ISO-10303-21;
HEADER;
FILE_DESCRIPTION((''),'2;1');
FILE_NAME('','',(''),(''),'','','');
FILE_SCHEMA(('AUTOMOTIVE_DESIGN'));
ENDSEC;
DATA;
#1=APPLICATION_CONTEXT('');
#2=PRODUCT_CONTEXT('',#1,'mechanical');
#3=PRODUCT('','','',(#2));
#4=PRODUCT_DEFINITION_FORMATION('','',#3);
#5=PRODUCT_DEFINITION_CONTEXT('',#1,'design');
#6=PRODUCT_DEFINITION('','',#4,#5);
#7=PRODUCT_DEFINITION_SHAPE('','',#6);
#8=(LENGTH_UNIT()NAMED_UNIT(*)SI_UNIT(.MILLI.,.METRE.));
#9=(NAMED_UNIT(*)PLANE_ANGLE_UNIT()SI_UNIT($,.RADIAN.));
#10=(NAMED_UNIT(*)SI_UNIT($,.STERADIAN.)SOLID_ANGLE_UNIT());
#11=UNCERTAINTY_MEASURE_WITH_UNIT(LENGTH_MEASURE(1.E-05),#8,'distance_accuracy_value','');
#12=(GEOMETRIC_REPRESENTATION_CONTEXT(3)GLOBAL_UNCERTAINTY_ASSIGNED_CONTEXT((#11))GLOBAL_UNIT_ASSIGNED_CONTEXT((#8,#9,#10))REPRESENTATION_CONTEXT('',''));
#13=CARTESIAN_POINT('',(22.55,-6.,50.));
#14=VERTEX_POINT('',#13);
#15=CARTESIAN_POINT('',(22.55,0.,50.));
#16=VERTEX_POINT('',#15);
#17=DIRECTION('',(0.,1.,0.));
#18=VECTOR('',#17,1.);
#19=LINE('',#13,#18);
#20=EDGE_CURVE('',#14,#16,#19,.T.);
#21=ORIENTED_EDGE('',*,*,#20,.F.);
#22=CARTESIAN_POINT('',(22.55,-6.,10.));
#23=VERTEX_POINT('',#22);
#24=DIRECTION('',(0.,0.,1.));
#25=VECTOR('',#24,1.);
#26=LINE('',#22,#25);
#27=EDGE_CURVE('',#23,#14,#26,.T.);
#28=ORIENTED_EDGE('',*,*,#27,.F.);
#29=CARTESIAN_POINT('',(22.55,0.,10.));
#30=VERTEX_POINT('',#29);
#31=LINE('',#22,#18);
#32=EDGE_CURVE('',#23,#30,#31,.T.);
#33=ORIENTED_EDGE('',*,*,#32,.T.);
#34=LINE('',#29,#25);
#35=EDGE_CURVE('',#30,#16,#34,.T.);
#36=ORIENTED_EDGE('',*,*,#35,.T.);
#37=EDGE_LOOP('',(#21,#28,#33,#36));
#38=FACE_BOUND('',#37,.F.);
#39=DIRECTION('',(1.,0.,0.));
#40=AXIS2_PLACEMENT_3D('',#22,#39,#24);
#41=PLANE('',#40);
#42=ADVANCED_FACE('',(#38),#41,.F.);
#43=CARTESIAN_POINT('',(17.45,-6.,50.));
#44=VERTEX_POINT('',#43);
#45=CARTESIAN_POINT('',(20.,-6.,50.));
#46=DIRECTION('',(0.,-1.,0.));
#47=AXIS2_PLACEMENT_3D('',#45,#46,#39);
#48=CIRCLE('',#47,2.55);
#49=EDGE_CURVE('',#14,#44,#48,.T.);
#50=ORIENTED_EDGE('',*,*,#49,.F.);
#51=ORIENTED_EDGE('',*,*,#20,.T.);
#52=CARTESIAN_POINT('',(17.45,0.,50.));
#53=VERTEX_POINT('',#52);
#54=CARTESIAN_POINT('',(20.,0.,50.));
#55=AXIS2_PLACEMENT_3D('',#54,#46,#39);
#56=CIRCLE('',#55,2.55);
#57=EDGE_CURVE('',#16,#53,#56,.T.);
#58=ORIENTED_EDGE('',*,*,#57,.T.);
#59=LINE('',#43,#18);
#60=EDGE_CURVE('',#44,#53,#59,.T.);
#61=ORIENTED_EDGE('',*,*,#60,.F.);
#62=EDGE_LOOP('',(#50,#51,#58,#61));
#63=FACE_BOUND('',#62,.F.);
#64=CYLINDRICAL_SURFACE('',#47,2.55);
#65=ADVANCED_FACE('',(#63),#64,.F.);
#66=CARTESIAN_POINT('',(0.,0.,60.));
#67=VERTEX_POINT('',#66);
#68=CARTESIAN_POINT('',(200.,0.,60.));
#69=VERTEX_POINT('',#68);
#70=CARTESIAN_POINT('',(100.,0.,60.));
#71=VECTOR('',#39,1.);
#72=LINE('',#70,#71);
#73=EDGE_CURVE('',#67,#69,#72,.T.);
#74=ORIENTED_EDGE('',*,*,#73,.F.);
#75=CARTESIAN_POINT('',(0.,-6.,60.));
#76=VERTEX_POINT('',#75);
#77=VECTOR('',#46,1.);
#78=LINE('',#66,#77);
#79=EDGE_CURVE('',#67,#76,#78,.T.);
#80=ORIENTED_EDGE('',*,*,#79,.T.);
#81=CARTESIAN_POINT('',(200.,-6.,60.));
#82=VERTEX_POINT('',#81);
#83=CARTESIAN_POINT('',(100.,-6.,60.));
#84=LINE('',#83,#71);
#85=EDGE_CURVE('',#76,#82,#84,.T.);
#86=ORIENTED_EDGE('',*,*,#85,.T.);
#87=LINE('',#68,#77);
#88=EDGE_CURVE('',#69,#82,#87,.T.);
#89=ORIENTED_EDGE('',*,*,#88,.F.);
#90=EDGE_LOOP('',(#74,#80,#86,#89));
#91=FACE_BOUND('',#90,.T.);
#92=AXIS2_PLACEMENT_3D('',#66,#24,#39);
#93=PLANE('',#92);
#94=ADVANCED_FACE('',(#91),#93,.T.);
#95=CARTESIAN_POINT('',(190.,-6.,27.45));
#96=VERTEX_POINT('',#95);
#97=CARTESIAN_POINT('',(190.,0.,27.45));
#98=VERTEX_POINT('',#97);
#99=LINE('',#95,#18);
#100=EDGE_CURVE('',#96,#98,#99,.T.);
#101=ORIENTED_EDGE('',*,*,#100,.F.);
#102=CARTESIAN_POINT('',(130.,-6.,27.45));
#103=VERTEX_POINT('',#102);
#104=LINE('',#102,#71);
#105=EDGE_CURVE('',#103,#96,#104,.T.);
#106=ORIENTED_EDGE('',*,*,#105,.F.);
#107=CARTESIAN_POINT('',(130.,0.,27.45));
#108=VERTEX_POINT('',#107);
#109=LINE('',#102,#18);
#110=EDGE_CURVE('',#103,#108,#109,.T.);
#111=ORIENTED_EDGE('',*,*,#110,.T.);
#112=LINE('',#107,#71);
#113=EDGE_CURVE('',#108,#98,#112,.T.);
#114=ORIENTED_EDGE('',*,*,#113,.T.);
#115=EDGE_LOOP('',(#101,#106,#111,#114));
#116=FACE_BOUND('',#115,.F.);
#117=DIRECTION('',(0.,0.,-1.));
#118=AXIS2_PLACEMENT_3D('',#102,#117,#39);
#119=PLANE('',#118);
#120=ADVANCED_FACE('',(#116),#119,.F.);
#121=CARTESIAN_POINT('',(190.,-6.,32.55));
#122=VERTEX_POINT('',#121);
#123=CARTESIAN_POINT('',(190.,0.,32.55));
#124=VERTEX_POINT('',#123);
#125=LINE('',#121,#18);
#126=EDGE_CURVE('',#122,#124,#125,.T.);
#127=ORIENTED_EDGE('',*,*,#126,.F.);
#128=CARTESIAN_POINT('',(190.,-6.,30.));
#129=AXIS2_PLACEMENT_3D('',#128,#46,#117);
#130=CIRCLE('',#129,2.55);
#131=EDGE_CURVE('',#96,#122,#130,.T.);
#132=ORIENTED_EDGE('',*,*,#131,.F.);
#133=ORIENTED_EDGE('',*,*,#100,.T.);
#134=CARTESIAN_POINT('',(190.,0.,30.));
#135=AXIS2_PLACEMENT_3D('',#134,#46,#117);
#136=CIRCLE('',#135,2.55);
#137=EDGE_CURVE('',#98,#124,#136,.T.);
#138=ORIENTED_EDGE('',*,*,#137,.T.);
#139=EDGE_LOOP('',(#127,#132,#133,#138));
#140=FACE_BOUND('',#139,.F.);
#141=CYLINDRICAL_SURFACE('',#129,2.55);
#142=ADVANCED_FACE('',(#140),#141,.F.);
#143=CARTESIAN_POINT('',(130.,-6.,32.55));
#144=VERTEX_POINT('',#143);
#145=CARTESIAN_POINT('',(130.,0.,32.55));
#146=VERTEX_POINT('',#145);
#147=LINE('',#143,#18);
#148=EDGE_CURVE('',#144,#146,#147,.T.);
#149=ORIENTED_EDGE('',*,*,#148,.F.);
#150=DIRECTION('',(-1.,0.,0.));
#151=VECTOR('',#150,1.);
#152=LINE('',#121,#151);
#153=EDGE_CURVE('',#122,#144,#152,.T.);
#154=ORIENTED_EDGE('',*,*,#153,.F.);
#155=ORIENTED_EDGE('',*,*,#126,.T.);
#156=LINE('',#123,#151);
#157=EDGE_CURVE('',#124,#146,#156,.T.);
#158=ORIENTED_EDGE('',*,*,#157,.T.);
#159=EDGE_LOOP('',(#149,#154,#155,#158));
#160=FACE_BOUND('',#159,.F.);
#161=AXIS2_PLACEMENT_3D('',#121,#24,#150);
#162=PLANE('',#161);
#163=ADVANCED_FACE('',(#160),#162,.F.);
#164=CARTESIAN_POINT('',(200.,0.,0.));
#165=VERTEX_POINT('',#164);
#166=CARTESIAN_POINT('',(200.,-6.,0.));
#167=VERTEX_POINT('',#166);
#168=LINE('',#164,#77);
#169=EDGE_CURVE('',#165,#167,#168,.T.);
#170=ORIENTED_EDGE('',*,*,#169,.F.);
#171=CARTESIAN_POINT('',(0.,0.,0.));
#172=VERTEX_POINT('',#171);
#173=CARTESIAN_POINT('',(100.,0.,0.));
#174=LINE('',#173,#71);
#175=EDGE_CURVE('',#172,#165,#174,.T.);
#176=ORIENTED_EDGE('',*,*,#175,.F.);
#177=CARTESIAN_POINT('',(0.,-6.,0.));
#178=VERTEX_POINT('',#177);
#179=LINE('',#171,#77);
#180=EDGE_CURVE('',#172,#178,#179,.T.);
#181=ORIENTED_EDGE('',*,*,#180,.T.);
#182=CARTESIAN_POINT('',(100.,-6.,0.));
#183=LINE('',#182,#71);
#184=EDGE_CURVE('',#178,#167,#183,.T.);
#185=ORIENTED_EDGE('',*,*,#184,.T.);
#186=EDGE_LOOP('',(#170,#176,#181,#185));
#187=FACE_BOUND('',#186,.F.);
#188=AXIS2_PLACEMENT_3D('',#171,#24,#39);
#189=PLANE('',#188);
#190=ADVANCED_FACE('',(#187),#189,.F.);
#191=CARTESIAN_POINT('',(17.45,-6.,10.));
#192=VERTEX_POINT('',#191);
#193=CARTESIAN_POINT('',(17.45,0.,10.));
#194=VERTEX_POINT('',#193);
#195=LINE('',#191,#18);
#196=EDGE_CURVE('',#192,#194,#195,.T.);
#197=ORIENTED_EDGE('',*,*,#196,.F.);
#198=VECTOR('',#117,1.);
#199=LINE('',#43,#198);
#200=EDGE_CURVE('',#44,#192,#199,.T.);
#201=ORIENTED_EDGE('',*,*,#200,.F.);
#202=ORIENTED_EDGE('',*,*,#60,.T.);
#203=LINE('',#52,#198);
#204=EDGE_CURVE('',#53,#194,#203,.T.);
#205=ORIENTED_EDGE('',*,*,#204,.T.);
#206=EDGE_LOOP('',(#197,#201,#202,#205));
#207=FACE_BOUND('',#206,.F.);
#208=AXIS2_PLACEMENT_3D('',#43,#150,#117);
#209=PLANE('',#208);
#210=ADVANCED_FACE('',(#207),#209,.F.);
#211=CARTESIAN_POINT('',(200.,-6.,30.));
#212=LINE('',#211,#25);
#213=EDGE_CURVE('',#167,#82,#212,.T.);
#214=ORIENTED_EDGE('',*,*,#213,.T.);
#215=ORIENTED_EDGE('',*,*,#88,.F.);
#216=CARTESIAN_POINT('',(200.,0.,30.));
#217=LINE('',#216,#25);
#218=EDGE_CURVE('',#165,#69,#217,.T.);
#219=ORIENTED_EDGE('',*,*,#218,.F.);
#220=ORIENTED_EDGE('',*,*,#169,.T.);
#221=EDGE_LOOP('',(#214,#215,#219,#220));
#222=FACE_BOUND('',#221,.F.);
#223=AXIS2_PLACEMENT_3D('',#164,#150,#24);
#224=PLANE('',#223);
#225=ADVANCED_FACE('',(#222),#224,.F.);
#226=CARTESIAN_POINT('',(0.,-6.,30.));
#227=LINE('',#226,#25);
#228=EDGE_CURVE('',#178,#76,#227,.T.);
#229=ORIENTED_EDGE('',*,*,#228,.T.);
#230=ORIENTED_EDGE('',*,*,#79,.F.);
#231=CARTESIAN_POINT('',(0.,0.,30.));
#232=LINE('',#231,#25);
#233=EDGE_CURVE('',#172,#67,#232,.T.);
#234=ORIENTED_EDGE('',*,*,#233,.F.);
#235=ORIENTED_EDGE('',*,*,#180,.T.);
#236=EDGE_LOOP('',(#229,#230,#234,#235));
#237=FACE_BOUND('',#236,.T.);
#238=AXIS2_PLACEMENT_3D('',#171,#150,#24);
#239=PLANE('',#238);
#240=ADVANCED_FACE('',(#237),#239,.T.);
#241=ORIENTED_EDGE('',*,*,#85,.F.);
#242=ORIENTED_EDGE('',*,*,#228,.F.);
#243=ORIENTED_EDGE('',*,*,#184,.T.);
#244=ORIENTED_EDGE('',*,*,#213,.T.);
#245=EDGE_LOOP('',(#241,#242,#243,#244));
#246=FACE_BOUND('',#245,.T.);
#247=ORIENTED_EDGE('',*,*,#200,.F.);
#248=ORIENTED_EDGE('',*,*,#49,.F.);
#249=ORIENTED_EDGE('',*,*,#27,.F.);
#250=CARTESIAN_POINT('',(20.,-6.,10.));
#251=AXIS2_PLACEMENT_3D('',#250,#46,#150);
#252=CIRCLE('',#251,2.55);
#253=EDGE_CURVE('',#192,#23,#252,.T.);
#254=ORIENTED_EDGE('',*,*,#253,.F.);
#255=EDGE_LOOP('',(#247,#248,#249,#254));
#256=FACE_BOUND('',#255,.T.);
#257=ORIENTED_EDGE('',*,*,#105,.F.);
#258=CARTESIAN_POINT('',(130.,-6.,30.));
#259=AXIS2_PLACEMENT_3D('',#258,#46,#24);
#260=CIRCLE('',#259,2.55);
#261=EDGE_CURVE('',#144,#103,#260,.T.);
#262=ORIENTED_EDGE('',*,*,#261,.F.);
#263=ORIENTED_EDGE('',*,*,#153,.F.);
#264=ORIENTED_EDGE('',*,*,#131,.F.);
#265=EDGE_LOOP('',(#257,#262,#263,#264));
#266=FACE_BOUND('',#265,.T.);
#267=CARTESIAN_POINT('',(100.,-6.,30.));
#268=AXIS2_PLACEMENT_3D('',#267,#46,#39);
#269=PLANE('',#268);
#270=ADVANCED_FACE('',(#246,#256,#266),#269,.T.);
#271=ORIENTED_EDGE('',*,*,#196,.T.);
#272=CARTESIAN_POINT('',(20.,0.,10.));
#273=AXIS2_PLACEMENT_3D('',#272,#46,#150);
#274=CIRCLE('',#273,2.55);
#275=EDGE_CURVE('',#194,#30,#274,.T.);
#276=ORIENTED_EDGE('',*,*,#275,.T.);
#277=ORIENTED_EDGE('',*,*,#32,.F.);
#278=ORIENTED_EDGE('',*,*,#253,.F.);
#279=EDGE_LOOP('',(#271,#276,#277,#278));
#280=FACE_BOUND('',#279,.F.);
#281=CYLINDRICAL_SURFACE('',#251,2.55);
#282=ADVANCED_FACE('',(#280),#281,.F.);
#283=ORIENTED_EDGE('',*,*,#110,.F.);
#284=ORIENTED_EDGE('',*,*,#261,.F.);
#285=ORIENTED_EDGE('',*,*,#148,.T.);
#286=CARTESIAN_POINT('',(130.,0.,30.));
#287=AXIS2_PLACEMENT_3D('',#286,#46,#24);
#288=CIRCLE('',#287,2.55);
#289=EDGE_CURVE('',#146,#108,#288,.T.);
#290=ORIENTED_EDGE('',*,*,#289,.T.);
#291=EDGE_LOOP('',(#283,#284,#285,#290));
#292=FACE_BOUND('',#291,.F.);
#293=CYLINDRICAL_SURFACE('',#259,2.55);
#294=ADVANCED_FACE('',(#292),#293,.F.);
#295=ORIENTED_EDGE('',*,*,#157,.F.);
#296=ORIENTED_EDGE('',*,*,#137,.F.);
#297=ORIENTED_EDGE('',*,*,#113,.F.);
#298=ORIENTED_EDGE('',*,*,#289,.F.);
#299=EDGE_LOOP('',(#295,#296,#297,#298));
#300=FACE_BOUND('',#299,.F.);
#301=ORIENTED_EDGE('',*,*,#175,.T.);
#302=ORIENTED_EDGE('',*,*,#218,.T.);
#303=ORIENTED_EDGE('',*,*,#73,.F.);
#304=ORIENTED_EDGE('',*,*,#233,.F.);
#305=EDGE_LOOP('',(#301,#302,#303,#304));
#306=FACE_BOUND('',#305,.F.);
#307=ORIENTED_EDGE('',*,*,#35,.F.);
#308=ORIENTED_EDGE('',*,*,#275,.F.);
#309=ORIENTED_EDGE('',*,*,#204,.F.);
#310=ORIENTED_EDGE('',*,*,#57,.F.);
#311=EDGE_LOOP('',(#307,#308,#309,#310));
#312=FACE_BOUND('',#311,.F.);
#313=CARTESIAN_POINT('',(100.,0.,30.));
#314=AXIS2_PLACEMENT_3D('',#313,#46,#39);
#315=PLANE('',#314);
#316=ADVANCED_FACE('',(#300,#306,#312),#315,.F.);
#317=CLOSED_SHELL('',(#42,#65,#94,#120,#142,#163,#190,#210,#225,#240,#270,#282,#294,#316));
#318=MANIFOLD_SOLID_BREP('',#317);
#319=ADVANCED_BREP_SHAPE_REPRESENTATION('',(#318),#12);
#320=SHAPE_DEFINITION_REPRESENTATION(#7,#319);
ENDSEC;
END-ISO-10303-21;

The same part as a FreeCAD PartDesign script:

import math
import FreeCAD as App
import Part
import Sketcher
from FreeCAD import Vector
Q = App.Units.Quantity


def add_polygon(sketch, points):
    """Adds a closed chain of lines whose ends are joined by coincident constraints."""
    first, n = sketch.GeometryCount, len(points)
    for a, b in zip(points, points[1:] + points[:1]):
        sketch.addGeometry(Part.LineSegment(App.Vector(*a, 0), App.Vector(*b, 0)), False)
    for i in range(n):
        sketch.addConstraint(Sketcher.Constraint("Coincident", first + i, 2, first + (i + 1) % n, 1))

doc = App.newDocument("Part")
body = doc.addObject("PartDesign::Body", "Body")

# Sketch on XZ plane
sketch1 = body.newObject("Sketcher::SketchObject", "Sketch")
sketch1.AttachmentSupport = (doc.getObject("XZ_Plane"), [""])
sketch1.MapMode = "FlatFace"
add_polygon(sketch1, [(0, 60), (0, 0), (200, 0), (200, 60)])  # lines 0-3
sketch1.addConstraint(Sketcher.Constraint("Vertical", 0))
sketch1.addConstraint(Sketcher.Constraint("Horizontal", 1))
sketch1.addConstraint(Sketcher.Constraint("Vertical", 2))
sketch1.addConstraint(Sketcher.Constraint("Horizontal", 3))
sketch1.addConstraint(Sketcher.Constraint("Coincident", 0, 2, -1, 1))
sketch1.addConstraint(Sketcher.Constraint("DistanceX", 1, 1, 1, 2, Q("200 mm")))
sketch1.addConstraint(Sketcher.Constraint("DistanceY", 0, 2, 0, 1, Q("60 mm")))
pad1 = body.newObject("PartDesign::Pad", "Pad")
pad1.Profile = sketch1
pad1.Length = 6

# Sketch on XZ plane
sketch2 = body.newObject("Sketcher::SketchObject", "Sketch001")
sketch2.AttachmentSupport = (doc.getObject("XZ_Plane"), [""])
sketch2.MapMode = "FlatFace"
sketch2.AttachmentOffset = App.Placement(Vector(0, 0, 6), App.Rotation())
sketch2.addGeometry(Part.ArcOfCircle(Part.Circle(Vector(20, 50, 0), Vector(0, 0, 1), 2.5), math.radians(0), math.radians(180)), False)
sketch2.addGeometry(Part.LineSegment(Vector(17.4, 50, 0), Vector(17.4, 10, 0)), False)
sketch2.addGeometry(Part.ArcOfCircle(Part.Circle(Vector(20, 10, 0), Vector(0, 0, 1), 2.5), math.radians(180), math.radians(360)), False)
sketch2.addGeometry(Part.LineSegment(Vector(22.6, 10, 0), Vector(22.6, 50, 0)), False)
sketch2.addGeometry(Part.ArcOfCircle(Part.Circle(Vector(190, 30, 0), Vector(0, 0, 1), 2.5), math.radians(-90), math.radians(90)), False)
sketch2.addGeometry(Part.LineSegment(Vector(190, 32.5, 0), Vector(130, 32.5, 0)), False)
sketch2.addGeometry(Part.ArcOfCircle(Part.Circle(Vector(130, 30, 0), Vector(0, 0, 1), 2.5), math.radians(90), math.radians(270)), False)
sketch2.addGeometry(Part.LineSegment(Vector(130, 27.4, 0), Vector(190, 27.4, 0)), False)
sketch2.addConstraint(Sketcher.Constraint("Tangent", 0, 2, 1, 1))
sketch2.addConstraint(Sketcher.Constraint("Tangent", 1, 2, 2, 1))
sketch2.addConstraint(Sketcher.Constraint("Tangent", 2, 2, 3, 1))
sketch2.addConstraint(Sketcher.Constraint("Tangent", 3, 2, 0, 1))
sketch2.addConstraint(Sketcher.Constraint("Tangent", 4, 2, 5, 1))
sketch2.addConstraint(Sketcher.Constraint("Tangent", 5, 2, 6, 1))
sketch2.addConstraint(Sketcher.Constraint("Tangent", 6, 2, 7, 1))
sketch2.addConstraint(Sketcher.Constraint("Tangent", 7, 2, 4, 1))
sketch2.addConstraint(Sketcher.Constraint("Vertical", 1))
sketch2.addConstraint(Sketcher.Constraint("Vertical", 3))
sketch2.addConstraint(Sketcher.Constraint("Horizontal", 5))
sketch2.addConstraint(Sketcher.Constraint("Horizontal", 7))
sketch2.addConstraint(Sketcher.Constraint("Equal", 2, 4))
sketch2.addConstraint(Sketcher.Constraint("DistanceX", 5, 2, 5, 1, Q("60 mm")))
sketch2.addConstraint(Sketcher.Constraint("DistanceY", 1, 2, 1, 1, Q("40 mm")))
sketch2.addConstraint(Sketcher.Constraint("Radius", 0, Q("2.55 mm")))
sketch2.addConstraint(Sketcher.Constraint("DistanceX", -1, 1, 0, 3, Q("20 mm")))
sketch2.addConstraint(Sketcher.Constraint("DistanceY", -1, 1, 0, 3, Q("50 mm")))
sketch2.addConstraint(Sketcher.Constraint("DistanceX", -1, 1, 4, 3, Q("190 mm")))
sketch2.addConstraint(Sketcher.Constraint("DistanceY", -1, 1, 4, 3, Q("30 mm")))
pocket1 = body.newObject("PartDesign::Pocket", "Pocket")
pocket1.Profile = sketch2
pocket1.Type = "ThroughAll"

doc.recompute()
